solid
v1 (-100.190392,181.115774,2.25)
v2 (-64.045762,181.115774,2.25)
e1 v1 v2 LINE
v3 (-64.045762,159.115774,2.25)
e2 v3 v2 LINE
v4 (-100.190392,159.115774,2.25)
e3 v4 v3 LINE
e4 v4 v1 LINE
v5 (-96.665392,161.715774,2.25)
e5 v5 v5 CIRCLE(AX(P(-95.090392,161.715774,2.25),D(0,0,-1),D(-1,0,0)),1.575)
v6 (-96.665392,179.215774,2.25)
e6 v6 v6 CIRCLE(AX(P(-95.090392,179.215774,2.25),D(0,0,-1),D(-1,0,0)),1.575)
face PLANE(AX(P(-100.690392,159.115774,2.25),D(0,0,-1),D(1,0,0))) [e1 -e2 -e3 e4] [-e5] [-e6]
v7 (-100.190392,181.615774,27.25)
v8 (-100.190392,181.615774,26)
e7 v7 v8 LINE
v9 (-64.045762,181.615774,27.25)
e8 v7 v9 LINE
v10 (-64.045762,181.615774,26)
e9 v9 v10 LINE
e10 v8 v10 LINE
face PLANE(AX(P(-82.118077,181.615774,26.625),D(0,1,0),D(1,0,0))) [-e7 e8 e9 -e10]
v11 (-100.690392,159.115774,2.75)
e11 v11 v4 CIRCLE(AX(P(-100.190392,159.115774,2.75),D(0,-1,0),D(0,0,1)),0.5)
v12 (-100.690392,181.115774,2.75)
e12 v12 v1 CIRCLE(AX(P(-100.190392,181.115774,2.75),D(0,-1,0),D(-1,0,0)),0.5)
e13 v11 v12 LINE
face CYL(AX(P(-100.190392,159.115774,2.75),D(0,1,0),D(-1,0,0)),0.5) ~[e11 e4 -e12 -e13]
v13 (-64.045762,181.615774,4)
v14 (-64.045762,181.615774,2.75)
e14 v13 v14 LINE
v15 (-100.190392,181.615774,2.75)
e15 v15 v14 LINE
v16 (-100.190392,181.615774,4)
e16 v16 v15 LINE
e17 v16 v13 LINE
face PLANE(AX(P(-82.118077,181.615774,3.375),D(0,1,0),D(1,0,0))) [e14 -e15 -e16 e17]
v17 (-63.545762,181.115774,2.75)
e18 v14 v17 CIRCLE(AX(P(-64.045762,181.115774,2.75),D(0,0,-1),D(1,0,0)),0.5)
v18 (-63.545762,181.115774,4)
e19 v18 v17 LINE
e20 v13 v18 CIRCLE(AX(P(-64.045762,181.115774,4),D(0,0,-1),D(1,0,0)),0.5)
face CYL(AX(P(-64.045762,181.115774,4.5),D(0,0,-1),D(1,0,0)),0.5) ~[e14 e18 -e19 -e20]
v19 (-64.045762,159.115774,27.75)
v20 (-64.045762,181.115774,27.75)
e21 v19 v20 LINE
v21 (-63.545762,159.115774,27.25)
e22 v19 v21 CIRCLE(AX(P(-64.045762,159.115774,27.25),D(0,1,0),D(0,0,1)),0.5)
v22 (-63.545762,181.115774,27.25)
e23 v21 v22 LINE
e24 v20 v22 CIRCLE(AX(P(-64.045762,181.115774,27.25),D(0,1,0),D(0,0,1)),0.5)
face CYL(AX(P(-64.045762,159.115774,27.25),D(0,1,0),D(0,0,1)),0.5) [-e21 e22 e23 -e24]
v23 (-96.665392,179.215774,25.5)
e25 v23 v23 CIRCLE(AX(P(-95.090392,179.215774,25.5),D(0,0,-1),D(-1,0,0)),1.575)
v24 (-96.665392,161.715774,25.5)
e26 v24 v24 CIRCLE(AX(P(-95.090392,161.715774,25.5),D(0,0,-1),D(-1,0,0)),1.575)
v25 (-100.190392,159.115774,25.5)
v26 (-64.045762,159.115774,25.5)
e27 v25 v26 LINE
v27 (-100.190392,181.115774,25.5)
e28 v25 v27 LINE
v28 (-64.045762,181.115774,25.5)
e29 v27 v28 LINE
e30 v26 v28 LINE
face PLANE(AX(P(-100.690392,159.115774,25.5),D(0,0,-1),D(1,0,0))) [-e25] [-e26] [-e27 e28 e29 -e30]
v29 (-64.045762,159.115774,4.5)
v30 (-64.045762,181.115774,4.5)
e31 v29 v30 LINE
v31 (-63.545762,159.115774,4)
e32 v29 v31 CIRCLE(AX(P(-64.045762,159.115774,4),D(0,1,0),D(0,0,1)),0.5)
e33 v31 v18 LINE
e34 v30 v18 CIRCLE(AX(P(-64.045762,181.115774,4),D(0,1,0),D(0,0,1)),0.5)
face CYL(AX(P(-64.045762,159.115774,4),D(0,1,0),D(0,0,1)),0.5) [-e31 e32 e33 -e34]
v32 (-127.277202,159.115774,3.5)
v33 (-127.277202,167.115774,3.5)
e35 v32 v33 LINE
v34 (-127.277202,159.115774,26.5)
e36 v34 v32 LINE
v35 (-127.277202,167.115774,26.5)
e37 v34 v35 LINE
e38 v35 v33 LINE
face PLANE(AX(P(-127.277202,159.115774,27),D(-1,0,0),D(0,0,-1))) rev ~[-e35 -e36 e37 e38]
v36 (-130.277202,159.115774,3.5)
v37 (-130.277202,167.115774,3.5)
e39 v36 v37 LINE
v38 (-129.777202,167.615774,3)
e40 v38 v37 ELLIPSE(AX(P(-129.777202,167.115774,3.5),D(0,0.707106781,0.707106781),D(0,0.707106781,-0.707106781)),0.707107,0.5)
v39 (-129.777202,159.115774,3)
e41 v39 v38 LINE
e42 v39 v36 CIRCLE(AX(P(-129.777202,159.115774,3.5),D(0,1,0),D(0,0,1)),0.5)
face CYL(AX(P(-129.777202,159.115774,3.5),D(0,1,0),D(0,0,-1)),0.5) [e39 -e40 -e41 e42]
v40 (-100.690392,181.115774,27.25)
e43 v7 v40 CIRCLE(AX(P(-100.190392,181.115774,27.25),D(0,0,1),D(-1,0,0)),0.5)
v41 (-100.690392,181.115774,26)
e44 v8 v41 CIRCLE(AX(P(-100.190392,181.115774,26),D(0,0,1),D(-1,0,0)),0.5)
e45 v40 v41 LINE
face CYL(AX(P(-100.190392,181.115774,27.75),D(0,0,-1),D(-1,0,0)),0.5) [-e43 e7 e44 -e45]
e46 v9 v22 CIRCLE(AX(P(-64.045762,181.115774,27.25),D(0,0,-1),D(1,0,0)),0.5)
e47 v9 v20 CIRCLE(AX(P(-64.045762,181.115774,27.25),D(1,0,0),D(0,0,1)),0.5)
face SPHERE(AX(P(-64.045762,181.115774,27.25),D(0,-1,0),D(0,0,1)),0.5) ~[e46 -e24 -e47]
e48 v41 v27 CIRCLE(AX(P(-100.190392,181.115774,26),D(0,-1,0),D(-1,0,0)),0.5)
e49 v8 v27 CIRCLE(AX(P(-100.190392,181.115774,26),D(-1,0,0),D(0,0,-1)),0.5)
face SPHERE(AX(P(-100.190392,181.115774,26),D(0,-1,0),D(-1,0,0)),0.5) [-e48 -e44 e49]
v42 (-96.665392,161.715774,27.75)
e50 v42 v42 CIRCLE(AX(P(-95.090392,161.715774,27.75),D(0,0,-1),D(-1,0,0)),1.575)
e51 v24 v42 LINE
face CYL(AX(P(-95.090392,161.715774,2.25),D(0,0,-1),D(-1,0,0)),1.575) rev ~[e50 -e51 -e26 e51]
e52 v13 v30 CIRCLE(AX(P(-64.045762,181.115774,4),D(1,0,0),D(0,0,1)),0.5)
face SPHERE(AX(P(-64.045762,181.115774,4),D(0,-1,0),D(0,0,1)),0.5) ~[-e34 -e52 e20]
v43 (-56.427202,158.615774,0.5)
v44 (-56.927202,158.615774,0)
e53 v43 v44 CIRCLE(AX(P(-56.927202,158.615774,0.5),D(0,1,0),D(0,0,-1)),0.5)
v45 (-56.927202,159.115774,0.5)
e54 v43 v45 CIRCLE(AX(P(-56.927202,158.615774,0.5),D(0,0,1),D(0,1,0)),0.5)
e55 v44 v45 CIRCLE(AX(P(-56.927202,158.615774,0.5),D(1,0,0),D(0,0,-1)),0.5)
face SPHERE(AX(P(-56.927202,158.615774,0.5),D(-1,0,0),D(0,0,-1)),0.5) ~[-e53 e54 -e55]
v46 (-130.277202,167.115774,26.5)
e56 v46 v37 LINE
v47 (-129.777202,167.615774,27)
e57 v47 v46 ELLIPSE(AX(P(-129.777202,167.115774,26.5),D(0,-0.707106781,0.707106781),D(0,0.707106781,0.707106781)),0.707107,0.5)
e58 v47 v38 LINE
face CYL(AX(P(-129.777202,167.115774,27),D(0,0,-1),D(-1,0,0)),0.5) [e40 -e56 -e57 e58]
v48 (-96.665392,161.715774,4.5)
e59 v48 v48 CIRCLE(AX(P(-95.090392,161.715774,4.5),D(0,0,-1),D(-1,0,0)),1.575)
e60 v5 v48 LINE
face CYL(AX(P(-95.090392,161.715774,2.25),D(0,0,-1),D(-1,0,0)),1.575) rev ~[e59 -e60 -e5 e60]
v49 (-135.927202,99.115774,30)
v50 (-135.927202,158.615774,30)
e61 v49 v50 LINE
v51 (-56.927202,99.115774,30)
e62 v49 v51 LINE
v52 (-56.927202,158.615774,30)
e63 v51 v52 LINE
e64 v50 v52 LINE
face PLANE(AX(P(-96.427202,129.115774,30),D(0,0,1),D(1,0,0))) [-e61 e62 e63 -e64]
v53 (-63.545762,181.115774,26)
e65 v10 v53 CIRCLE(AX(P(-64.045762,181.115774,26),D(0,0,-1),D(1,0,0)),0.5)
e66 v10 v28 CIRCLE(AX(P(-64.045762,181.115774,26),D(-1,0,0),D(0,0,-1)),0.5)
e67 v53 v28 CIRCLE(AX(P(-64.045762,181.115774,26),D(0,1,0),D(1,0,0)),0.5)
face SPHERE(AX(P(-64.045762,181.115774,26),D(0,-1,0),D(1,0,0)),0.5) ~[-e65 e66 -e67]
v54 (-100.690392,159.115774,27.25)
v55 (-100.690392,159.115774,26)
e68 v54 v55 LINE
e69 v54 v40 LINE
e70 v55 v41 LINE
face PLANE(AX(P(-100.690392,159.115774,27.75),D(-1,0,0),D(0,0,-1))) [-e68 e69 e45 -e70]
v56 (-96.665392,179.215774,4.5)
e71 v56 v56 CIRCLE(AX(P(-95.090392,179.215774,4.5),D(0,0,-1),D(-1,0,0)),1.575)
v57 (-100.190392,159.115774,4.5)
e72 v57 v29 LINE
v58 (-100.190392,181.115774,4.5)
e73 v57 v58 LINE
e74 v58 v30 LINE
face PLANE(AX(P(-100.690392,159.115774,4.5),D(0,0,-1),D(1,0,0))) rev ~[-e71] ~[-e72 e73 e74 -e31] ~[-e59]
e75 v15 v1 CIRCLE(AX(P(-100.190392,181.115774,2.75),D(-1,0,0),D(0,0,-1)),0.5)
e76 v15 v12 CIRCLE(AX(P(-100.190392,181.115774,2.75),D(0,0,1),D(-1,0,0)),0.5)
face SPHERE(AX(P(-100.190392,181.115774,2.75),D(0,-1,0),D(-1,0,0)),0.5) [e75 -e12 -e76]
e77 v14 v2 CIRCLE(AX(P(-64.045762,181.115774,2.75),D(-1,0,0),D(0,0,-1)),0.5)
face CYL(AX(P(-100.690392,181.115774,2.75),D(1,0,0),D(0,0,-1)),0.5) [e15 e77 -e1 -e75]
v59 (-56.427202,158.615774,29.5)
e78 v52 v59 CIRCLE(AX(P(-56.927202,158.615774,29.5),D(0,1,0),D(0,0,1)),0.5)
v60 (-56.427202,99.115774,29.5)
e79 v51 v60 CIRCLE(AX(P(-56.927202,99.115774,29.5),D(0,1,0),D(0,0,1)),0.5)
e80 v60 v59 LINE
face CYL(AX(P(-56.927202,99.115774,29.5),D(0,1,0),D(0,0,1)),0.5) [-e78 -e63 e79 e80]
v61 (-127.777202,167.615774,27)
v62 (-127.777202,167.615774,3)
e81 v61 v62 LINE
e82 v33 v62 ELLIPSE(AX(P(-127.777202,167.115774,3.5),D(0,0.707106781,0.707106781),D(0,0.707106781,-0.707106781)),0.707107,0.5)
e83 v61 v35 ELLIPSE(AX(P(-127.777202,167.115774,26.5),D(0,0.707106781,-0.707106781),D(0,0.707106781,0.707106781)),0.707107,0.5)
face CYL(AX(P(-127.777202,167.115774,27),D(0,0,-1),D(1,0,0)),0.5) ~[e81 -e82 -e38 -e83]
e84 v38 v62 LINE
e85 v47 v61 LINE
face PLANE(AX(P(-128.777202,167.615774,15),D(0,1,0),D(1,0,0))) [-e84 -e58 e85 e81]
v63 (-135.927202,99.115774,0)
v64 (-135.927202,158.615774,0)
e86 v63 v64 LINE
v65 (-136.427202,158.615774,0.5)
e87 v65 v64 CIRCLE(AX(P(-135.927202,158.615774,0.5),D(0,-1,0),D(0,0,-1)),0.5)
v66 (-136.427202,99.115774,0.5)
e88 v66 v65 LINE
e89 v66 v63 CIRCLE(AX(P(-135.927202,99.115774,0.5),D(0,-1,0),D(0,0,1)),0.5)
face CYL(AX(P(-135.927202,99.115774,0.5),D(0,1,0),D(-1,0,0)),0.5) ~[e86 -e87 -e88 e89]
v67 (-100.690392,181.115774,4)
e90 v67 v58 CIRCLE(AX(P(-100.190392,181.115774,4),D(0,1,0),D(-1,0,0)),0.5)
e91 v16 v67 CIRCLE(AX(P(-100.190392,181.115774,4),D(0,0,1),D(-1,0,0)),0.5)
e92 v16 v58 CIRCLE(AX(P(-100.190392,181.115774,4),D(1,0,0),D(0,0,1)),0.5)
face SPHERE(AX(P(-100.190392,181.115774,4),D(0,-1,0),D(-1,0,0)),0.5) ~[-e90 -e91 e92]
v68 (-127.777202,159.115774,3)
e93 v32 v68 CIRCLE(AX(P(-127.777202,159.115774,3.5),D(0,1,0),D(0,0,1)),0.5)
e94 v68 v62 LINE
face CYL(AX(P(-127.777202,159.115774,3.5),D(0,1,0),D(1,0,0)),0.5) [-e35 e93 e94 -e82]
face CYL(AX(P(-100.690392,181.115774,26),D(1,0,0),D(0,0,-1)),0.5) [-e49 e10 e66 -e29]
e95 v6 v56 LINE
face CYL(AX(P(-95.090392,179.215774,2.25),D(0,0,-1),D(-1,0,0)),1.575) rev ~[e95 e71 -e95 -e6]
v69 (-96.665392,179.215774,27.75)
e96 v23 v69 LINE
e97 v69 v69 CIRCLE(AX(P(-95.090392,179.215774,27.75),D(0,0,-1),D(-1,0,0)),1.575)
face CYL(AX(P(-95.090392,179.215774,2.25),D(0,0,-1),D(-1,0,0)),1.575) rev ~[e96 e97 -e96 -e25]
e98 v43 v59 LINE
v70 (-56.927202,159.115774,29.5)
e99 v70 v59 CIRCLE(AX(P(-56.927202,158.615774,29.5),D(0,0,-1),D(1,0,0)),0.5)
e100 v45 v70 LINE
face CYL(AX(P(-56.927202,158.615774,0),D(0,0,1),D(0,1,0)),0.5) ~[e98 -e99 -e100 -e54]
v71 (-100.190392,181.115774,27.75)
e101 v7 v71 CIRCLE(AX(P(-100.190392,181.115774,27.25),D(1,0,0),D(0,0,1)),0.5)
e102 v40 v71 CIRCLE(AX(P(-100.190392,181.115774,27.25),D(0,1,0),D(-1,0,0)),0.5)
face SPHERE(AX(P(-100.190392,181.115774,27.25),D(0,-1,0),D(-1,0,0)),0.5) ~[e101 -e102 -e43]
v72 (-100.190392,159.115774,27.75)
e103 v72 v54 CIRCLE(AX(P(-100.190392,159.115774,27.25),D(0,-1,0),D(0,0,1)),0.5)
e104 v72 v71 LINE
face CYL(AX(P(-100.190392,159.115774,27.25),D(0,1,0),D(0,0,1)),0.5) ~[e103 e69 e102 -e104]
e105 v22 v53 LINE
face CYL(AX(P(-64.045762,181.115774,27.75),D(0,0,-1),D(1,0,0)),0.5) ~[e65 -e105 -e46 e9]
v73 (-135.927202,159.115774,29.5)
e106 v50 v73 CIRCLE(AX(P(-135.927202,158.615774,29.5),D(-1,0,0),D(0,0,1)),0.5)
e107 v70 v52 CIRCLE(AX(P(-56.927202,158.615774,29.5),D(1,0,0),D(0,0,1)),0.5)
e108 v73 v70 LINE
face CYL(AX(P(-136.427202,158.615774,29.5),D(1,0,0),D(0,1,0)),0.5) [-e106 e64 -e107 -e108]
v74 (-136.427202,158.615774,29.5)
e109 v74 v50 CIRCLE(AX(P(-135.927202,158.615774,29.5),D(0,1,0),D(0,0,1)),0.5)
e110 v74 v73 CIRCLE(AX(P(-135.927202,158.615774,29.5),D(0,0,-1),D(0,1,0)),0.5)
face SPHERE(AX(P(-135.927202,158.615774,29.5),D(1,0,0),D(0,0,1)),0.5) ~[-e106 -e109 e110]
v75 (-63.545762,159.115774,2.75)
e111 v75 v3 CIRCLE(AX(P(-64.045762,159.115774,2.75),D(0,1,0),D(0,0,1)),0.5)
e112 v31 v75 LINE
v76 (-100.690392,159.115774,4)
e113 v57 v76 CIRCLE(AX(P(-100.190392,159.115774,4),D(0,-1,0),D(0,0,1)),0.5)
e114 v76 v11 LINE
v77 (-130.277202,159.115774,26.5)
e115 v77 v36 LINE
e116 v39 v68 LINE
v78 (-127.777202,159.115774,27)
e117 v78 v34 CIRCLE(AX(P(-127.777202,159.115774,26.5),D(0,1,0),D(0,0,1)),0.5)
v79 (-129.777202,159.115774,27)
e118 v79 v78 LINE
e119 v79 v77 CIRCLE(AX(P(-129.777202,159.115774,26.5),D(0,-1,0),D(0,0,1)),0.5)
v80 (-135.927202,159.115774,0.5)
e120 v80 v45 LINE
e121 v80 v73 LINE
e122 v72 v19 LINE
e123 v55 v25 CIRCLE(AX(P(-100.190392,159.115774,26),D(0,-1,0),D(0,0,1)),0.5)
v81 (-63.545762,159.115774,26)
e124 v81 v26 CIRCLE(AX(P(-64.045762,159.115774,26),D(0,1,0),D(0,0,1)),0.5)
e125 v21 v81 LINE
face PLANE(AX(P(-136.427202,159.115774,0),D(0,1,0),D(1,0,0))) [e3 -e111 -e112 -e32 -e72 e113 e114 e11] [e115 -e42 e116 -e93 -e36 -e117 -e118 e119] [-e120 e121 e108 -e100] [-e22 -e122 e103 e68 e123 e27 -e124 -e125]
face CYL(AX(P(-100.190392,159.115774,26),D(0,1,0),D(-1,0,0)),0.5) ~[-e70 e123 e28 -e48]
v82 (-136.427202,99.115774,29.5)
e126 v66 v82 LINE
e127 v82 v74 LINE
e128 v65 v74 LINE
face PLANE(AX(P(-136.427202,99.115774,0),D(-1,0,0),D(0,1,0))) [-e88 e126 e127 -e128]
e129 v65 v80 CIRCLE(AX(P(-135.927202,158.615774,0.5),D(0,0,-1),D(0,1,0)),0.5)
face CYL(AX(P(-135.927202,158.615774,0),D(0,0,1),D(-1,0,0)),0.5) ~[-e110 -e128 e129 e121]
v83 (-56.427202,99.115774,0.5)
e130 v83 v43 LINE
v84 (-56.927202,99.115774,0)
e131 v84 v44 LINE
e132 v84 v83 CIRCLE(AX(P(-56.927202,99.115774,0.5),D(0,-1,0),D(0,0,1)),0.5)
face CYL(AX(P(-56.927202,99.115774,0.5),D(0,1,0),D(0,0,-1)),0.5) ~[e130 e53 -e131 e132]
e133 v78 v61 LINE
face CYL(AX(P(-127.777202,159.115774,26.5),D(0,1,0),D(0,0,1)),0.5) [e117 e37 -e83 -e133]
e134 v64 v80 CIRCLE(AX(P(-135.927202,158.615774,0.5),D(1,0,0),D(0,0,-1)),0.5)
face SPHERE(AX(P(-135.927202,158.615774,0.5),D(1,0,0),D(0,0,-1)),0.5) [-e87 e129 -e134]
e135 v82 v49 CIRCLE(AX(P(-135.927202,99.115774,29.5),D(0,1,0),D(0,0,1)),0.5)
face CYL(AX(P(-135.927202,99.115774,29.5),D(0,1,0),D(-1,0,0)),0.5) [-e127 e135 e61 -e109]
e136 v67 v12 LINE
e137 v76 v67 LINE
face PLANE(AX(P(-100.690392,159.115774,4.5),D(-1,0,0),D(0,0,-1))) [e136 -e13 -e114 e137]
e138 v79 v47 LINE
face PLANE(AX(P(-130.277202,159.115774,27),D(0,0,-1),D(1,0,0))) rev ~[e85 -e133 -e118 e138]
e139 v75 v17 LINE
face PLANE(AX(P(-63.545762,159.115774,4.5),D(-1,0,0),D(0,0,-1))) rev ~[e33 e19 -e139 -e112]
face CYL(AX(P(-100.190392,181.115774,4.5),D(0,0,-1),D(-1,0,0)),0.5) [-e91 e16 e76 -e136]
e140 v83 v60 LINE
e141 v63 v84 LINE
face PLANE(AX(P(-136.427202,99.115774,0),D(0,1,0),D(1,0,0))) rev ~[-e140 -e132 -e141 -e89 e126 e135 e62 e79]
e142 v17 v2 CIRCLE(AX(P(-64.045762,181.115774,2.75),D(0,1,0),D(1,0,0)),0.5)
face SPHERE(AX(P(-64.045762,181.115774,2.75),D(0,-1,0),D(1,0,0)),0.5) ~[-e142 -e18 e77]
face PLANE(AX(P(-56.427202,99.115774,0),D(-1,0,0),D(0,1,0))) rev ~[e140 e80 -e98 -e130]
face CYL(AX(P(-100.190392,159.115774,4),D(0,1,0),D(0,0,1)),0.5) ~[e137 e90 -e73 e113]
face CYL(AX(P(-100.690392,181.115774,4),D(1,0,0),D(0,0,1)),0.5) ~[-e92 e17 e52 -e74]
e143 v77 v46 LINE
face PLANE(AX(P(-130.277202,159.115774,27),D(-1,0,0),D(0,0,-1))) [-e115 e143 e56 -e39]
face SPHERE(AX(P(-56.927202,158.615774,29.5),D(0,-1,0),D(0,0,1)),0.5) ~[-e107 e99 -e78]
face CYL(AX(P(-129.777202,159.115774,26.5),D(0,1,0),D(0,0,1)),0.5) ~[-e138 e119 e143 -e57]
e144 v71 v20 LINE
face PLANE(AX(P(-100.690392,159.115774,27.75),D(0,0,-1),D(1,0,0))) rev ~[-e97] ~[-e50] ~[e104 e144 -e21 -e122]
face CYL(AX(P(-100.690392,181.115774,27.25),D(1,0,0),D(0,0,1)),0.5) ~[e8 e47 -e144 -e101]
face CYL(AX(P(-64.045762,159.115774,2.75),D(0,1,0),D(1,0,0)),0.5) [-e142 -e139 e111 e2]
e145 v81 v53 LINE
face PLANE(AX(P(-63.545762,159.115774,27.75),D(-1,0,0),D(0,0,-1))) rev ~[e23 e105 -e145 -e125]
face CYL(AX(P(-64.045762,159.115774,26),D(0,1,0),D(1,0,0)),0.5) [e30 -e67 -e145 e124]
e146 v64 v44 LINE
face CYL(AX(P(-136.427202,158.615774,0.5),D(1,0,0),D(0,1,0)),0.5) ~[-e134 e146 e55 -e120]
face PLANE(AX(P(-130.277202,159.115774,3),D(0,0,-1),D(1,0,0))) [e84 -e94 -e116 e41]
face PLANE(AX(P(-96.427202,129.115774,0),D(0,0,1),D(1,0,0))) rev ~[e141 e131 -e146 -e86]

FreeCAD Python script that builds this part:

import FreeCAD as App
import Part
import Sketcher
Q = App.Units.Quantity


def edges_at(feature, points):
    """Names of the edges that pass closest to the given points."""
    edges = feature.Shape.Edges
    near = lambda p: min(range(len(edges)), key=lambda i: edges[i].distToShape(Part.Vertex(*p))[0])
    return sorted({f"Edge{near(p) + 1}" for p in points})

doc = App.newDocument("Part")
body = doc.addObject("PartDesign::Body", "Body")

# Sketch on XY plane
sketch1 = body.newObject("Sketcher::SketchObject", "Sketch")
sketch1.AttachmentSupport = (doc.getObject("XY_Plane"), [""])
sketch1.MapMode = "FlatFace"
sketch1.addGeometry([
    Part.LineSegment(App.Vector(-136, 159, 0), App.Vector(-136, 99, 0)),
    Part.LineSegment(App.Vector(-136, 99, 0), App.Vector(-56, 99, 0)),
    Part.LineSegment(App.Vector(-56, 99, 0), App.Vector(-56, 159, 0)),
    Part.LineSegment(App.Vector(-56, 159, 0), App.Vector(-136, 159, 0)),
], False)
sketch1.addConstraint([
    Sketcher.Constraint("Coincident", 0, 2, 1, 1),
    Sketcher.Constraint("Coincident", 1, 2, 2, 1),
    Sketcher.Constraint("Coincident", 2, 2, 3, 1),
    Sketcher.Constraint("Coincident", 3, 2, 0, 1),
    Sketcher.Constraint("Vertical", 0),
    Sketcher.Constraint("Horizontal", 1),
    Sketcher.Constraint("Vertical", 2),
    Sketcher.Constraint("Horizontal", 3),
    Sketcher.Constraint("DistanceX", 1, 1, 1, 2, Q("80 mm")),
    Sketcher.Constraint("DistanceY", 0, 2, 0, 1, Q("60 mm")),
    Sketcher.Constraint("DistanceX", 0, 2, -1, 1, Q("136.427202 mm")),
    Sketcher.Constraint("DistanceY", -1, 1, 0, 2, Q("99.115774 mm")),
])
pad1 = body.newObject("PartDesign::Pad", "Pad")
pad1.Profile = sketch1
pad1.Length = 30

# Sketch on XZ plane
sketch2 = body.newObject("Sketcher::SketchObject", "Sketch001")
sketch2.AttachmentSupport = (doc.getObject("XZ_Plane"), [""])
sketch2.MapMode = "FlatFace"
sketch2.AttachmentOffset = App.Placement(App.Vector(0, 0, -159.115774), App.Rotation())
sketch2.addGeometry([
    Part.LineSegment(App.Vector(-100.7, 2.2, 0), App.Vector(-100.7, 4.5, 0)),  # 0
    Part.LineSegment(App.Vector(-100.7, 4.5, 0), App.Vector(-63.5, 4.5, 0)),  # 1
    Part.LineSegment(App.Vector(-63.5, 4.5, 0), App.Vector(-63.5, 2.2, 0)),  # 2
    Part.LineSegment(App.Vector(-63.5, 2.2, 0), App.Vector(-100.7, 2.2, 0)),  # 3
    Part.LineSegment(App.Vector(-100.7, 25.5, 0), App.Vector(-100.7, 27.8, 0)),  # 4
    Part.LineSegment(App.Vector(-100.7, 27.8, 0), App.Vector(-63.5, 27.8, 0)),  # 5
    Part.LineSegment(App.Vector(-63.5, 27.8, 0), App.Vector(-63.5, 25.5, 0)),  # 6
    Part.LineSegment(App.Vector(-63.5, 25.5, 0), App.Vector(-100.7, 25.5, 0)),  # 7
], False)
sketch2.addConstraint([
    Sketcher.Constraint("Coincident", 0, 2, 1, 1),
    Sketcher.Constraint("Coincident", 1, 2, 2, 1),
    Sketcher.Constraint("Coincident", 2, 2, 3, 1),
    Sketcher.Constraint("Coincident", 3, 2, 0, 1),
    Sketcher.Constraint("Coincident", 4, 2, 5, 1),
    Sketcher.Constraint("Coincident", 5, 2, 6, 1),
    Sketcher.Constraint("Coincident", 6, 2, 7, 1),
    Sketcher.Constraint("Coincident", 7, 2, 4, 1),
    Sketcher.Constraint("Vertical", 0),
    Sketcher.Constraint("Horizontal", 1),
    Sketcher.Constraint("Vertical", 2),
    Sketcher.Constraint("Horizontal", 3),
    Sketcher.Constraint("Vertical", 4),
    Sketcher.Constraint("Horizontal", 5),
    Sketcher.Constraint("Vertical", 6),
    Sketcher.Constraint("Horizontal", 7),
    Sketcher.Constraint("Vertical", 3, 2, 4, 2),
    Sketcher.Constraint("Vertical", 2, 2, 5, 2),
    Sketcher.Constraint("Equal", 2, 4),
    Sketcher.Constraint("DistanceY", 1, 2, 6, 2, Q("21 mm")),
    Sketcher.Constraint("DistanceY", 0, 1, 0, 2, Q("2.25 mm")),
    Sketcher.Constraint("DistanceY", -1, 1, 0, 2, Q("4.5 mm")),
    Sketcher.Constraint("DistanceX", 1, 1, 1, 2, Q("37.144631 mm")),
    Sketcher.Constraint("DistanceX", 1, 2, -1, 1, Q("63.545762 mm")),
])
pad2 = body.newObject("PartDesign::Pad", "Pad001")
pad2.Profile = sketch2
pad2.Length = 22.5
pad2.Reversed = True

# Sketch on XZ plane
sketch3 = body.newObject("Sketcher::SketchObject", "Sketch002")
sketch3.AttachmentSupport = (doc.getObject("XZ_Plane"), [""])
sketch3.MapMode = "FlatFace"
sketch3.AttachmentOffset = App.Placement(App.Vector(0, 0, -159.115774), App.Rotation())
sketch3.addGeometry([
    Part.LineSegment(App.Vector(-130.3, 3, 0), App.Vector(-130.3, 27, 0)),
    Part.LineSegment(App.Vector(-130.3, 27, 0), App.Vector(-127.3, 27, 0)),
    Part.LineSegment(App.Vector(-127.3, 27, 0), App.Vector(-127.3, 3, 0)),
    Part.LineSegment(App.Vector(-127.3, 3, 0), App.Vector(-130.3, 3, 0)),
], False)
sketch3.addConstraint([
    Sketcher.Constraint("Coincident", 0, 2, 1, 1),
    Sketcher.Constraint("Coincident", 1, 2, 2, 1),
    Sketcher.Constraint("Coincident", 2, 2, 3, 1),
    Sketcher.Constraint("Coincident", 3, 2, 0, 1),
    Sketcher.Constraint("Vertical", 0),
    Sketcher.Constraint("Horizontal", 1),
    Sketcher.Constraint("Vertical", 2),
    Sketcher.Constraint("Horizontal", 3),
    Sketcher.Constraint("DistanceX", 1, 1, 1, 2, Q("3 mm")),
    Sketcher.Constraint("DistanceY", 0, 1, 0, 2, Q("24 mm")),
    Sketcher.Constraint("DistanceY", -1, 1, 0, 2, Q("27 mm")),
    Sketcher.Constraint("DistanceX", 0, 2, -1, 1, Q("130.277202 mm")),
])
pad3 = body.newObject("PartDesign::Pad", "Pad002")
pad3.Profile = sketch3
pad3.Length = 8.5
pad3.Reversed = True

# Sketch on XY plane
sketch4 = body.newObject("Sketcher::SketchObject", "Sketch003")
sketch4.AttachmentSupport = (doc.getObject("XY_Plane"), [""])
sketch4.MapMode = "FlatFace"
sketch4.AttachmentOffset = App.Placement(App.Vector(0, 0, 2.25), App.Rotation())
sketch4.addGeometry([
    Part.Circle(App.Vector(-95.1, 161.7, 0), App.Vector(0, 0, 1), 1.6),
    Part.Circle(App.Vector(-95.1, 179.2, 0), App.Vector(0, 0, 1), 1.6),
], False)
sketch4.addConstraint([
    Sketcher.Constraint("Equal", 0, 1),
    Sketcher.Constraint("Vertical", 0, 3, 1, 3),
    Sketcher.Constraint("Diameter", 0, Q("3.15 mm")),
    Sketcher.Constraint("DistanceY", 0, 3, 1, 3, Q("17.5 mm")),
    Sketcher.Constraint("DistanceX", 0, 3, -1, 1, Q("95.090392 mm")),
    Sketcher.Constraint("DistanceY", -1, 1, 0, 3, Q("161.715774 mm")),
])
pocket1 = body.newObject("PartDesign::Pocket", "Pocket")
pocket1.Profile = sketch4
pocket1.Length = 30
pocket1.Reversed = True
doc.recompute()

fillet = body.newObject("PartDesign::Fillet", "Fillet")
fillet.Base = (pocket1, edges_at(pocket1, [
    (-56.427, 129.116, 30),
    (-100.69, 170.366, 2.25),
    (-100.69, 170.366, 4.5),
    (-96.427, 159.116, 30),
    (-63.546, 170.366, 4.5),
    (-63.546, 170.366, 2.25),
    (-100.69, 181.616, 3.375),
    (-82.118, 181.616, 4.5),
    (-63.546, 181.616, 3.375),
    (-82.118, 181.616, 2.25),
    (-100.69, 170.366, 25.5),
    (-100.69, 170.366, 27.75),
    (-63.546, 170.366, 27.75),
    (-63.546, 170.366, 25.5),
    (-100.69, 181.616, 26.625),
    (-82.118, 181.616, 27.75),
    (-63.546, 181.616, 26.625),
    (-82.118, 181.616, 25.5),
    (-130.277, 163.366, 3),
    (-130.277, 163.366, 27),
    (-127.277, 163.366, 27),
    (-127.277, 163.366, 3),
    (-130.277, 167.616, 15),
    (-127.277, 167.616, 15),
    (-136.427, 129.116, 30),
    (-96.427, 159.116, 0),
    (-56.427, 129.116, 0),
    (-136.427, 129.116, 0),
    (-136.427, 159.116, 15),
    (-56.427, 159.116, 15),
]))
fillet.Radius = 0.5

doc.recompute()
